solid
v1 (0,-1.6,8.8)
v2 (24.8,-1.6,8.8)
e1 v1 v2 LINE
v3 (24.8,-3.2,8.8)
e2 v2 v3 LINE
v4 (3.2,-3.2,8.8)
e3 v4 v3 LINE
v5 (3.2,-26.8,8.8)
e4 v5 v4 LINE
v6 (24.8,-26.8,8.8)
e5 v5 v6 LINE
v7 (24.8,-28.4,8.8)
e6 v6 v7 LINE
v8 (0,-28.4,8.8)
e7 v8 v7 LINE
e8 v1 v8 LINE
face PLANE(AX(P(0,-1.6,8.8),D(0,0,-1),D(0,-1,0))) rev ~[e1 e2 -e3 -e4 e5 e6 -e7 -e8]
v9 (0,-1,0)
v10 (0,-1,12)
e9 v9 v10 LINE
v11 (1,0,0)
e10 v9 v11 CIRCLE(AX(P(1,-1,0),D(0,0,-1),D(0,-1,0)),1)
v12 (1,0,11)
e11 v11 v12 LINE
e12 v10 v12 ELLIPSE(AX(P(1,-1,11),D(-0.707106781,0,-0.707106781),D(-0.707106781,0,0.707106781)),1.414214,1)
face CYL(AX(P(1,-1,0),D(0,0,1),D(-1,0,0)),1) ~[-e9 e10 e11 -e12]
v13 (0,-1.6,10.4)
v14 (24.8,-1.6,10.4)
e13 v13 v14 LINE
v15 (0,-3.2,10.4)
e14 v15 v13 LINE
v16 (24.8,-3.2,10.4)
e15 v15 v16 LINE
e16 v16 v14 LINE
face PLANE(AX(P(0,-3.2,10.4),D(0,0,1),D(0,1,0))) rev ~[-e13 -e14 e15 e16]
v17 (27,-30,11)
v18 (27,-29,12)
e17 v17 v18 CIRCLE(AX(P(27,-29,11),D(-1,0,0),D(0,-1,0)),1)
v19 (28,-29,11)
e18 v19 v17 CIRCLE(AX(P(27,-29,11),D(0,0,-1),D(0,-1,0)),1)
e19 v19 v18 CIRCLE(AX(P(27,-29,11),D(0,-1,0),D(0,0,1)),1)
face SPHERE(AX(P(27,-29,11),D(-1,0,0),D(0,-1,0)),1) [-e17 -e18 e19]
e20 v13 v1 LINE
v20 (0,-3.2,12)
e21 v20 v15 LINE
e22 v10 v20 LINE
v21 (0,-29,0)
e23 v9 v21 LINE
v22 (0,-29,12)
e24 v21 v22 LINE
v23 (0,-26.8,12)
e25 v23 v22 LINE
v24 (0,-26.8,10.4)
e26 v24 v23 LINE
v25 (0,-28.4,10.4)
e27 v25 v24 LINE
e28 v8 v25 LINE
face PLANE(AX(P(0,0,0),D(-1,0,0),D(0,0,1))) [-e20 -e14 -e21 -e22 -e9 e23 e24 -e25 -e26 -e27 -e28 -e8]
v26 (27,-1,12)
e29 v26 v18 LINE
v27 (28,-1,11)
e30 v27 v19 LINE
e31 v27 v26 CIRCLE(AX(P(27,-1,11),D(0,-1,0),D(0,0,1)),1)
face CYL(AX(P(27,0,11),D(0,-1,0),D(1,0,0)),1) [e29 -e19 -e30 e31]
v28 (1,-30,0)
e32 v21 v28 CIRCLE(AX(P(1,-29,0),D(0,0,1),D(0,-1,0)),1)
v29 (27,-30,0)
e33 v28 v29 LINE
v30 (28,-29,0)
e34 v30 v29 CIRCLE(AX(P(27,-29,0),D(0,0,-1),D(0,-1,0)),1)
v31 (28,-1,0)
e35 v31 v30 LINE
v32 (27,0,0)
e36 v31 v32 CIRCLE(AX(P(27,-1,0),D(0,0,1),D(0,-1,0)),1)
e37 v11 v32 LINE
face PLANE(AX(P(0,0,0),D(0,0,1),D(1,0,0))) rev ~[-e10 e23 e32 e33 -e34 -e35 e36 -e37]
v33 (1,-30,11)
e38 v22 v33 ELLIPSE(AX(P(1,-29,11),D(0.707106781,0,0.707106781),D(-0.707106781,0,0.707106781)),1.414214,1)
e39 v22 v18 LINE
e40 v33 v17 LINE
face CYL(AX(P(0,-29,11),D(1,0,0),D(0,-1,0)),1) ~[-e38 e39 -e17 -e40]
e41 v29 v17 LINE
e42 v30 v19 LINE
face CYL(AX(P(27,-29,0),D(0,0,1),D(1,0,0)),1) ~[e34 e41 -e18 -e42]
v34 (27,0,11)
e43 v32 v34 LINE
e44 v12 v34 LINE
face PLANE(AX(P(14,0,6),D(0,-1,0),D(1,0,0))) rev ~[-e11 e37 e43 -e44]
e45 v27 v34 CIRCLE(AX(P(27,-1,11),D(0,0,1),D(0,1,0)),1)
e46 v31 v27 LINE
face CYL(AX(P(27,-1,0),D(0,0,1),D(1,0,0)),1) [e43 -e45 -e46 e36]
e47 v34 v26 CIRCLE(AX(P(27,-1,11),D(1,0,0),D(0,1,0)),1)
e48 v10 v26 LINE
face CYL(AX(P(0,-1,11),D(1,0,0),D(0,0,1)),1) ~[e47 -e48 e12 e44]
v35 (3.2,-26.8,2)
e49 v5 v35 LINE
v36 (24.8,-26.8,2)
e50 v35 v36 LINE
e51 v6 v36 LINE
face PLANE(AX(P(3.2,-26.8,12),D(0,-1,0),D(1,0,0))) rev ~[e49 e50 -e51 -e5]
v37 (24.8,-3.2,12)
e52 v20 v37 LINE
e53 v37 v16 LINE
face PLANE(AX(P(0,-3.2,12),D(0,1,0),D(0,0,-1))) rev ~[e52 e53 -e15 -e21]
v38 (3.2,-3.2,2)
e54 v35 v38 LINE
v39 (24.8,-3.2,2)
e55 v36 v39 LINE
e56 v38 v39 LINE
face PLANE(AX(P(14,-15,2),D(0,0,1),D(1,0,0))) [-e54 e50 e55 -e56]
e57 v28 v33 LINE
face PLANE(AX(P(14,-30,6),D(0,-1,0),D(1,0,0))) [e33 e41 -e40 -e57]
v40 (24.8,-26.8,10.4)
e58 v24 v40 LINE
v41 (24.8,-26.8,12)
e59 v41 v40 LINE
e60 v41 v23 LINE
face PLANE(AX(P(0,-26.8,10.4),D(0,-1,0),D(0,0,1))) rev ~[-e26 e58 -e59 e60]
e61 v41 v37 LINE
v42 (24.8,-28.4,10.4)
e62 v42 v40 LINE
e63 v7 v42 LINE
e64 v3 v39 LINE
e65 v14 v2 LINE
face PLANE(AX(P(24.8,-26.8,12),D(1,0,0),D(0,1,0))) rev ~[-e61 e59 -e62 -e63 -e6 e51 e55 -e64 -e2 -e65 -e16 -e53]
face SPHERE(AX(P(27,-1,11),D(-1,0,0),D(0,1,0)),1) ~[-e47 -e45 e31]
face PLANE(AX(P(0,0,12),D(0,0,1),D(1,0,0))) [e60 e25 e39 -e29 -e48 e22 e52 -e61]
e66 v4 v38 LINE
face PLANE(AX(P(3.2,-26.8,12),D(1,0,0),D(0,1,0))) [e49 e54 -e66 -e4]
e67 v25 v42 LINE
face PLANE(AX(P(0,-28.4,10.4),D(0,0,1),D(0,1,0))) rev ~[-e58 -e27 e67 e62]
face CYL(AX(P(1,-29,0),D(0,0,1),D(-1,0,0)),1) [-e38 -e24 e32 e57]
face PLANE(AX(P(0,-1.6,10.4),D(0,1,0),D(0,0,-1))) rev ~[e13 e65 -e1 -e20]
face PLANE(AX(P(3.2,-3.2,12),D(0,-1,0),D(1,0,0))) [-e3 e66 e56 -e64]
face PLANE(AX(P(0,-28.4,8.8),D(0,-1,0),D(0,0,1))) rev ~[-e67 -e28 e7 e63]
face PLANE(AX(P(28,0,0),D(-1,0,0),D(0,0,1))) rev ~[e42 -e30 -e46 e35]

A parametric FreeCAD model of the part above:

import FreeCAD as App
import Part
import Sketcher


def edges_at(feature, points):
    """Names of the edges that pass closest to the given points."""
    edges = feature.Shape.Edges
    near = lambda p: min(range(len(edges)), key=lambda i: edges[i].distToShape(Part.Vertex(*p))[0])
    return sorted({f"Edge{near(p) + 1}" for p in points})


def add_polygon(sketch, points):
    """Adds a closed chain of lines whose ends are joined by coincident constraints."""
    first, n = sketch.GeometryCount, len(points)
    for a, b in zip(points, points[1:] + points[:1]):
        sketch.addGeometry(Part.LineSegment(App.Vector(*a, 0), App.Vector(*b, 0)), False)
    for i in range(n):
        sketch.addConstraint(Sketcher.Constraint("Coincident", first + i, 2, first + (i + 1) % n, 1))

doc = App.newDocument("Part")
body = doc.addObject("PartDesign::Body", "Body")

# Sketch on XZ plane
sketch1 = body.newObject("Sketcher::SketchObject", "Sketch")
sketch1.AttachmentSupport = (doc.getObject("XZ_Plane"), [""])
sketch1.MapMode = "FlatFace"
add_polygon(sketch1, [(0, 12), (0, 0), (28, 0), (28, 12)])  # lines 0-3
sketch1.addConstraint([
    Sketcher.Constraint("Vertical", 0),
    Sketcher.Constraint("Horizontal", 1),
    Sketcher.Constraint("Vertical", 2),
    Sketcher.Constraint("Horizontal", 3),
    Sketcher.Constraint("Coincident", 0, 2, -1, 1),
    Sketcher.Constraint("DistanceX", 1, 1, 1, 2, 28.0),
    Sketcher.Constraint("DistanceY", 0, 2, 0, 1, 12.0),
])
pad1 = body.newObject("PartDesign::Pad", "Pad")
pad1.Profile = sketch1
pad1.Length = 30

# Sketch on XY plane
sketch2 = body.newObject("Sketcher::SketchObject", "Sketch001")
sketch2.AttachmentSupport = (doc.getObject("XY_Plane"), [""])
sketch2.MapMode = "FlatFace"
sketch2.AttachmentOffset = App.Placement(App.Vector(0, 0, 12), App.Rotation())
add_polygon(sketch2, [(3.2, -3.2), (3.2, -26.8), (24.8, -26.8), (24.8, -3.2)])  # lines 0-3
sketch2.addConstraint([
    Sketcher.Constraint("Vertical", 0),
    Sketcher.Constraint("Horizontal", 1),
    Sketcher.Constraint("Vertical", 2),
    Sketcher.Constraint("Horizontal", 3),
    Sketcher.Constraint("DistanceX", 1, 1, 1, 2, 21.6),
    Sketcher.Constraint("DistanceY", 0, 2, 0, 1, 23.6),
    Sketcher.Constraint("DistanceX", -1, 1, 0, 2, 3.2),
    Sketcher.Constraint("DistanceY", 0, 2, -1, 1, 26.8),
])
pocket1 = body.newObject("PartDesign::Pocket", "Pocket")
pocket1.Profile = sketch2
pocket1.Length = 10

# Sketch on YZ plane
sketch3 = body.newObject("Sketcher::SketchObject", "Sketch002")
sketch3.AttachmentSupport = (doc.getObject("YZ_Plane"), [""])
sketch3.MapMode = "FlatFace"
add_polygon(sketch3, [(-3.2, 10.4), (-1.6, 10.4), (-1.6, 8.8), (-28.4, 8.8), (-28.4, 10.4), (-26.8, 10.4), (-26.8, 12), (-3.2, 12)])  # lines 0-7
sketch3.addConstraint([
    Sketcher.Constraint("Horizontal", 0),
    Sketcher.Constraint("Vertical", 1),
    Sketcher.Constraint("Horizontal", 2),
    Sketcher.Constraint("Vertical", 3),
    Sketcher.Constraint("Horizontal", 4),
    Sketcher.Constraint("Vertical", 5),
    Sketcher.Constraint("Horizontal", 6),
    Sketcher.Constraint("Vertical", 7),
    Sketcher.Constraint("Horizontal", 0, 2, 3, 2),
    Sketcher.Constraint("Equal", 0, 4),
    Sketcher.Constraint("Equal", 4, 1),
    Sketcher.Constraint("Equal", 3, 5),
    Sketcher.Constraint("DistanceX", 0, 1, 0, 2, 1.6),
    Sketcher.Constraint("DistanceX", 2, 2, 2, 1, 26.8),
    Sketcher.Constraint("DistanceY", -1, 1, 5, 2, 12.0),
    Sketcher.Constraint("DistanceX", 0, 2, -1, 1, 1.6),
])
pocket2 = body.newObject("PartDesign::Pocket", "Pocket001")
pocket2.Profile = sketch3
pocket2.Length = 24.8
pocket2.Reversed = True
doc.recompute()

fillet = body.newObject("PartDesign::Fillet", "Fillet")
fillet.Base = (pocket2, edges_at(pocket2, [
    (0, 0, 6),
    (14, 0, 12),
    (0, -30, 6),
    (14, -30, 12),
    (28, 0, 6),
    (28, -30, 6),
    (28, -15, 12),
]))
fillet.Radius = 1

doc.recompute()
